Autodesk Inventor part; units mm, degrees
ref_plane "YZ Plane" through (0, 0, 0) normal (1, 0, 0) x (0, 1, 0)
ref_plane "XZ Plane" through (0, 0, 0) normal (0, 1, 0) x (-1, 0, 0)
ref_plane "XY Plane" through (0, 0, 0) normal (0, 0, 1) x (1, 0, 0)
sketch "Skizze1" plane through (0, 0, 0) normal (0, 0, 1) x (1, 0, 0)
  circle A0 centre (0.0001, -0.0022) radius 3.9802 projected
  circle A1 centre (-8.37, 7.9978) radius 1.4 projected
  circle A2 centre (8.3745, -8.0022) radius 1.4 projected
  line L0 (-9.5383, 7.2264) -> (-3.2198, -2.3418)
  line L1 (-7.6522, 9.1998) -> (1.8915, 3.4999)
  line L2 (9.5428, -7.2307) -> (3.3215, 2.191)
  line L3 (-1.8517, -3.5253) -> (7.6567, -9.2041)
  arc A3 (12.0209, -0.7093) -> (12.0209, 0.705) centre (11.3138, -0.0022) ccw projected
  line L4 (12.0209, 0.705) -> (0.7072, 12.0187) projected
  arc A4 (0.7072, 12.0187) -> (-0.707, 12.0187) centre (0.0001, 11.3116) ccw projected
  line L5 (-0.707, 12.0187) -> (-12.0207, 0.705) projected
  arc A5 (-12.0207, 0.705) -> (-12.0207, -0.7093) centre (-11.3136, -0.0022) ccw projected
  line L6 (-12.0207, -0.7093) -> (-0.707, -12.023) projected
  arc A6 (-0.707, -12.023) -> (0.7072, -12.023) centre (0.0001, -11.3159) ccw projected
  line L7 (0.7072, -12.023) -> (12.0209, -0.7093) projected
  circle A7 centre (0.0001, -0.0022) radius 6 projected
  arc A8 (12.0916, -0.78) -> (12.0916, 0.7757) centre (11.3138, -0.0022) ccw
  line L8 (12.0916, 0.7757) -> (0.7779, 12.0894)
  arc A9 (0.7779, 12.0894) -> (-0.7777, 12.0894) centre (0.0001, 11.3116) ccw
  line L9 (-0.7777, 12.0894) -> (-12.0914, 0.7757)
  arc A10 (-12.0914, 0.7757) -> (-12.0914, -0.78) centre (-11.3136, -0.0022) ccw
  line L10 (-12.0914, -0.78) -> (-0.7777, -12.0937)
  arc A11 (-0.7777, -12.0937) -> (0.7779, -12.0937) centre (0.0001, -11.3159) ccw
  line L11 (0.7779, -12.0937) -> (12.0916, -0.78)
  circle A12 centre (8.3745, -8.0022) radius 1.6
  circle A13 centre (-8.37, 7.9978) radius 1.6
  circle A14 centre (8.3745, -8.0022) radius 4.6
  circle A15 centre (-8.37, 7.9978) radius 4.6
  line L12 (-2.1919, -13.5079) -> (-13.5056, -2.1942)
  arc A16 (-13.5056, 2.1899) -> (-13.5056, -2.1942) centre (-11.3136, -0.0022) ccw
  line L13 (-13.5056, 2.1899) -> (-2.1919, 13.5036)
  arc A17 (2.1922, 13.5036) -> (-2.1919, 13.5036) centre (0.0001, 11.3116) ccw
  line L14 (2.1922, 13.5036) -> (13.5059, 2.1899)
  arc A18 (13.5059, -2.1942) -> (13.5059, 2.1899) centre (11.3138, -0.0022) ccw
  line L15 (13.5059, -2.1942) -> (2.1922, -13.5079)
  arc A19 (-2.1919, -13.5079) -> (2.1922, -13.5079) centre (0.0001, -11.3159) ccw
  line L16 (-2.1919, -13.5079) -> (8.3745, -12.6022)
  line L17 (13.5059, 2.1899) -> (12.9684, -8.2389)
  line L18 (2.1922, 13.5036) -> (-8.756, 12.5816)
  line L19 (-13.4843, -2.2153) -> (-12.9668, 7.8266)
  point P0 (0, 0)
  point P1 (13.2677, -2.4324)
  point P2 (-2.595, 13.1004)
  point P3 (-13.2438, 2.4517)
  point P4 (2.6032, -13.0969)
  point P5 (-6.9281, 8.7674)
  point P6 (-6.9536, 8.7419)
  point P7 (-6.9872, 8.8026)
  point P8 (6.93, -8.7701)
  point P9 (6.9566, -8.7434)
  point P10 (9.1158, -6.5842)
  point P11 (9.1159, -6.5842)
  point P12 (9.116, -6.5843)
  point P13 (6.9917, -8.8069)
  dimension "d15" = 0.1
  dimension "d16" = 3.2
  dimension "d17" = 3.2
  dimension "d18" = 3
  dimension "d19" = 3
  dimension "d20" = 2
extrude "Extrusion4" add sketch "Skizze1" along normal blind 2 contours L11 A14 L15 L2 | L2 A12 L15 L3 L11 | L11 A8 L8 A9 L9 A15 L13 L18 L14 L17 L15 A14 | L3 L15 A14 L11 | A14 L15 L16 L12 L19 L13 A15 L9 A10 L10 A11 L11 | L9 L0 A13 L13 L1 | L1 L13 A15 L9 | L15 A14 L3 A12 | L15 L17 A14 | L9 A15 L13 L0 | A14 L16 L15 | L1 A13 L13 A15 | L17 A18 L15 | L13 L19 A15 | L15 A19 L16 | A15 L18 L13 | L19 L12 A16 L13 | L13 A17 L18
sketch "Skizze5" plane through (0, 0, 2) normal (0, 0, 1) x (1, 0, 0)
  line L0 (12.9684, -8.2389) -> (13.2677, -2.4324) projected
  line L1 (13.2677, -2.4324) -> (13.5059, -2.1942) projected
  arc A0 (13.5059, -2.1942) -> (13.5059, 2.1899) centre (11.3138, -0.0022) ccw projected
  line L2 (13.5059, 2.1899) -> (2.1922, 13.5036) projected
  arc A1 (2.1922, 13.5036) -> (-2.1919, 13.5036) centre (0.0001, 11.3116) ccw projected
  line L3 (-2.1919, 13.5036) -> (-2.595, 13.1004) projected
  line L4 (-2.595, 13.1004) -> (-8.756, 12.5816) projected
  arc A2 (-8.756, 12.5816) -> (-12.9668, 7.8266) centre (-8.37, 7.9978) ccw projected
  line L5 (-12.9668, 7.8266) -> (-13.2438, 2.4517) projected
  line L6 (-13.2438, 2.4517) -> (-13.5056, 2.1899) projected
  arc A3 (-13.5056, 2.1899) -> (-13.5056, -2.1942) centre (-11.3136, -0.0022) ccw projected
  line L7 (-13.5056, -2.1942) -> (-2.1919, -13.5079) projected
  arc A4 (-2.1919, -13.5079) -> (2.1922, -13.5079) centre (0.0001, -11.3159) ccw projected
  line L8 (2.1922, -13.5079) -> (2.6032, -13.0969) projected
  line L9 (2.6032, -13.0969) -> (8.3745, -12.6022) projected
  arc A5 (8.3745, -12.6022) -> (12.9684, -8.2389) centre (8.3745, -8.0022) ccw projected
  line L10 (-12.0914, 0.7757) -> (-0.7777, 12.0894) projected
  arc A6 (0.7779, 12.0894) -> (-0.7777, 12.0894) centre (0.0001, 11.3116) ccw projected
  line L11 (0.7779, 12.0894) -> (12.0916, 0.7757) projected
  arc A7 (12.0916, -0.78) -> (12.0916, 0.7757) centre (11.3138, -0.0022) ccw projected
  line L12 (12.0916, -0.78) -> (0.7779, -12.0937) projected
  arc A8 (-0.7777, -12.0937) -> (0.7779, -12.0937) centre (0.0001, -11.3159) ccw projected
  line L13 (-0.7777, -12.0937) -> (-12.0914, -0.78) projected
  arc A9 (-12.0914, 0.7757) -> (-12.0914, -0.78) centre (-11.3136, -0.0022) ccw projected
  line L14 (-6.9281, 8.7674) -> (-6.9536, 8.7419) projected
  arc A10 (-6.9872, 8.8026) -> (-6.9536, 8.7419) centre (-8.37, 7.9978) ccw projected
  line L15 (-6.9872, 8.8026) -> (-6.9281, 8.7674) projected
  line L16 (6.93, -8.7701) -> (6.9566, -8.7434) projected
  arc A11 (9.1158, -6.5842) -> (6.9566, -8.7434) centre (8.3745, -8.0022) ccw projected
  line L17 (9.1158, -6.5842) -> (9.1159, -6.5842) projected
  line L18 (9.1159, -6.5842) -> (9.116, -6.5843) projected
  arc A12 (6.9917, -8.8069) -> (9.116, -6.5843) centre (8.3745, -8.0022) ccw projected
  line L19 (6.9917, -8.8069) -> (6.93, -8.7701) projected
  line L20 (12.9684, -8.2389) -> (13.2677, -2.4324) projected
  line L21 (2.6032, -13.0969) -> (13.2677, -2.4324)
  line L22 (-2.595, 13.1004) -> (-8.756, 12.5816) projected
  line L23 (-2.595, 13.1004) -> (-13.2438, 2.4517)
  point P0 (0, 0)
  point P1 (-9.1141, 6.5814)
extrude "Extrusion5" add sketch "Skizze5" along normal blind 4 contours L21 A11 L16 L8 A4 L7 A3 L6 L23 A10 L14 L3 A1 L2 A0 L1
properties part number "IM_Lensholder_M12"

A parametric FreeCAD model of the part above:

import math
import FreeCAD as App
import Part
import Sketcher

V = App.Vector
Q = App.Units.Quantity

doc = App.newDocument("Part")
body = doc.addObject("PartDesign::Body", "Body")

# Sketch on XY plane
sketch1 = body.newObject("Sketcher::SketchObject", "Sketch")
sketch1.AttachmentSupport = (doc.getObject("XY_Plane"), [""])
sketch1.MapMode = "FlatFace"
sketch1.addGeometry([
    Part.LineSegment(V(13.506, 2.19, 0), V(2.192, 13.504, 0)),  # 0
    Part.ArcOfCircle(Part.Circle(V(0, 11.312, 0), V(0, 0, 1), 3.1), math.radians(45), math.radians(135)),  # 1
    Part.LineSegment(V(-2.192, 13.504, 0), V(-2.595, 13.1, 0)),  # 2
    Part.LineSegment(V(-2.595, 13.1, 0), V(-8.756, 12.582, 0)),  # 3
    Part.ArcOfCircle(Part.Circle(V(-8.37, 7.998, 0), V(0, 0, 1), 4.6), math.radians(95), math.radians(182)),  # 4
    Part.LineSegment(V(-12.967, 7.827, 0), V(-13.244, 2.452, 0)),  # 5
    Part.LineSegment(V(-13.244, 2.452, 0), V(-13.506, 2.19, 0)),  # 6
    Part.ArcOfCircle(Part.Circle(V(-11.314, -0.002, 0), V(0, 0, 1), 3.1), math.radians(135), math.radians(225)),  # 7
    Part.LineSegment(V(-13.506, -2.194, 0), V(-2.192, -13.508, 0)),  # 8
    Part.ArcOfCircle(Part.Circle(V(0, -11.316, 0), V(0, 0, 1), 3.1), math.radians(-135), math.radians(-45)),  # 9
    Part.LineSegment(V(2.192, -13.508, 0), V(2.603, -13.097, 0)),  # 10
    Part.LineSegment(V(2.603, -13.097, 0), V(8.374, -12.602, 0)),  # 11
    Part.ArcOfCircle(Part.Circle(V(8.374, -8.002, 0), V(0, 0, 1), 4.6), math.radians(-90), math.radians(-3)),  # 12
    Part.LineSegment(V(12.968, -8.239, 0), V(13.268, -2.432, 0)),  # 13
    Part.LineSegment(V(13.268, -2.432, 0), V(13.506, -2.194, 0)),  # 14
    Part.ArcOfCircle(Part.Circle(V(11.314, -0.002, 0), V(0, 0, 1), 3.1), math.radians(-45), math.radians(45)),  # 15
    Part.ArcOfCircle(Part.Circle(V(0, -11.316, 0), V(0, 0, 1), 1.1), math.radians(-135), math.radians(-45)),  # 16
    Part.LineSegment(V(-0.778, -12.094, 0), V(-12.091, -0.78, 0)),  # 17
    Part.ArcOfCircle(Part.Circle(V(-11.314, -0.002, 0), V(0, 0, 1), 1.1), math.radians(135), math.radians(225)),  # 18
    Part.LineSegment(V(-12.091, 0.776, 0), V(-0.778, 12.089, 0)),  # 19
    Part.ArcOfCircle(Part.Circle(V(0, 11.312, 0), V(0, 0, 1), 1.1), math.radians(45), math.radians(135)),  # 20
    Part.LineSegment(V(0.778, 12.089, 0), V(12.092, 0.776, 0)),  # 21
    Part.ArcOfCircle(Part.Circle(V(11.314, -0.002, 0), V(0, 0, 1), 1.1), math.radians(-45), math.radians(45)),  # 22
    Part.LineSegment(V(12.092, -0.78, 0), V(0.778, -12.094, 0)),  # 23
    Part.LineSegment(V(6.992, -8.807, 0), V(6.93, -8.77, 0)),  # 24
    Part.LineSegment(V(6.93, -8.77, 0), V(6.957, -8.744, 0)),  # 25
    Part.ArcOfCircle(Part.Circle(V(8.374, -8.002, 0), V(0, 0, 1), 1.6), math.radians(-150), math.radians(208)),  # 26
    Part.LineSegment(V(-6.987, 8.803, 0), V(-6.928, 8.767, 0)),  # 27
    Part.LineSegment(V(-6.928, 8.767, 0), V(-6.954, 8.742, 0)),  # 28
    Part.ArcOfCircle(Part.Circle(V(-8.37, 7.998, 0), V(0, 0, 1), 1.6), math.radians(30), math.radians(388)),  # 29
], False)
sketch1.addConstraint([
    Sketcher.Constraint("Tangent", 0, 2, 1, 1),
    Sketcher.Constraint("Tangent", 1, 2, 2, 1),
    Sketcher.Constraint("Coincident", 2, 2, 3, 1),
    Sketcher.Constraint("Tangent", 3, 2, 4, 1),
    Sketcher.Constraint("Coincident", 4, 2, 5, 1),
    Sketcher.Constraint("Coincident", 5, 2, 6, 1),
    Sketcher.Constraint("Tangent", 6, 2, 7, 1),
    Sketcher.Constraint("Tangent", 7, 2, 8, 1),
    Sketcher.Constraint("Tangent", 8, 2, 9, 1),
    Sketcher.Constraint("Tangent", 9, 2, 10, 1),
    Sketcher.Constraint("Coincident", 10, 2, 11, 1),
    Sketcher.Constraint("Coincident", 11, 2, 12, 1),
    Sketcher.Constraint("Tangent", 12, 2, 13, 1),
    Sketcher.Constraint("Coincident", 13, 2, 14, 1),
    Sketcher.Constraint("Tangent", 14, 2, 15, 1),
    Sketcher.Constraint("Tangent", 15, 2, 0, 1),
    Sketcher.Constraint("Tangent", 16, 1, 17, 1),
    Sketcher.Constraint("Tangent", 17, 2, 18, 2),
    Sketcher.Constraint("Tangent", 18, 1, 19, 1),
    Sketcher.Constraint("Tangent", 19, 2, 20, 2),
    Sketcher.Constraint("Tangent", 20, 1, 21, 1),
    Sketcher.Constraint("Tangent", 21, 2, 22, 2),
    Sketcher.Constraint("Tangent", 22, 1, 23, 1),
    Sketcher.Constraint("Tangent", 23, 2, 16, 2),
    Sketcher.Constraint("Coincident", 24, 2, 25, 1),
    Sketcher.Constraint("Coincident", 25, 2, 26, 2),
    Sketcher.Constraint("Coincident", 26, 1, 24, 1),
    Sketcher.Constraint("Coincident", 27, 2, 28, 1),
    Sketcher.Constraint("Coincident", 28, 2, 29, 2),
    Sketcher.Constraint("Coincident", 29, 1, 27, 1),
    Sketcher.Constraint("Coincident", 16, 3, 9, 3),
    Sketcher.Constraint("Coincident", 18, 3, 7, 3),
    Sketcher.Constraint("Coincident", 20, 3, 1, 3),
    Sketcher.Constraint("Coincident", 22, 3, 15, 3),
    Sketcher.Constraint("Coincident", 26, 3, 12, 3),
    Sketcher.Constraint("Coincident", 29, 3, 4, 3),
    Sketcher.Constraint("Equal", 1, 7),
    Sketcher.Constraint("Equal", 7, 9),
    Sketcher.Constraint("Equal", 4, 12),
    Sketcher.Constraint("Equal", 9, 15),
    Sketcher.Constraint("Equal", 16, 18),
    Sketcher.Constraint("Equal", 18, 20),
    Sketcher.Constraint("Equal", 20, 22),
    Sketcher.Constraint("Equal", 26, 29),
    Sketcher.Constraint("Symmetric", 7, 3, 15, 3, -2),
    Sketcher.Constraint("Symmetric", 0, 2, 1, 2, -2),
    Sketcher.Constraint("Symmetric", 8, 2, 9, 2, -2),
    Sketcher.Constraint("Perpendicular", 0, 2),
    Sketcher.Constraint("Parallel", 2, 6),
    Sketcher.Constraint("Perpendicular", 6, 8),
    Sketcher.Constraint("Parallel", 5, 13),
    Sketcher.Constraint("Parallel", 10, 14),
    Sketcher.Constraint("Parallel", 23, 25),
    Sketcher.Constraint("Parallel", 24, 27),
    Sketcher.Constraint("Parallel", 25, 28),
    Sketcher.Constraint("Vertical", 26, 3, 11, 2),
    Sketcher.Constraint("Radius", 26, 1.6),
    Sketcher.Constraint("Radius", 1, 3.1),
    Sketcher.Constraint("Radius", 4, 4.6),
    Sketcher.Constraint("Radius", 16, 1.1),
    Sketcher.Constraint("Distance", 0, 16.0),
    Sketcher.Constraint("Angle", 11, Q("4.8991 deg")),
    Sketcher.Constraint("DistanceY", 7, 3, 4, 3, 8.0),
    Sketcher.Constraint("DistanceY", 12, 3, 7, 3, 8.0),
    Sketcher.Constraint("Angle", 5, Q("-92.95 deg")),
    Sketcher.Constraint("DistanceX", 4, 3, -1, 1, 8.37),
    Sketcher.Constraint("DistanceY", -1, 1, 6, 2, 2.19),
    Sketcher.Constraint("DistanceX", -1, 1, 24, 2, 6.93),
    Sketcher.Constraint("DistanceY", 24, 2, -1, 1, 8.77),
    Sketcher.Constraint("DistanceY", 1, 3, 3, 2, 1.27),
    Sketcher.Constraint("Distance", 5, 5.382),
    Sketcher.Constraint("Distance", 14, 0.337),
    Sketcher.Constraint("Distance", 28, 0.036),
    Sketcher.Constraint("DistanceY", -1, 1, 28, 2, 8.742),
    Sketcher.Constraint("DistanceX", 25, 2, 26, 1, 0.035),
])
pad1 = body.newObject("PartDesign::Pad", "Pad")
pad1.Profile = sketch1
pad1.Length = 2

# Sketch on XY plane
sketch2 = body.newObject("Sketcher::SketchObject", "Sketch001")
sketch2.AttachmentSupport = (doc.getObject("XY_Plane"), [""])
sketch2.MapMode = "FlatFace"
sketch2.AttachmentOffset = App.Placement(V(0, 0, 2), App.Rotation())
sketch2.addGeometry([
    Part.LineSegment(V(9.116, -6.584, 0), V(13.506, -2.194, 0)),  # 0
    Part.ArcOfCircle(Part.Circle(V(11.314, -0.002, 0), V(0, 0, 1), 3.1), math.radians(-45), math.radians(45)),  # 1
    Part.LineSegment(V(13.506, 2.19, 0), V(2.192, 13.504, 0)),  # 2
    Part.ArcOfCircle(Part.Circle(V(0, 11.312, 0), V(0, 0, 1), 3.1), math.radians(45), math.radians(135)),  # 3
    Part.LineSegment(V(-2.192, 13.504, 0), V(-2.595, 13.1, 0)),  # 4
    Part.LineSegment(V(-2.595, 13.1, 0), V(-6.928, 8.767, 0)),  # 5
    Part.LineSegment(V(-6.928, 8.767, 0), V(-6.954, 8.742, 0)),  # 6
    Part.ArcOfCircle(Part.Circle(V(-8.37, 7.998, 0), V(0, 0, 1), 1.6), math.radians(-118), math.radians(28)),  # 7
    Part.LineSegment(V(-9.114, 6.581, 0), V(-13.244, 2.452, 0)),  # 8
    Part.LineSegment(V(-13.244, 2.452, 0), V(-13.506, 2.19, 0)),  # 9
    Part.ArcOfCircle(Part.Circle(V(-11.314, -0.002, 0), V(0, 0, 1), 3.1), math.radians(135), math.radians(225)),  # 10
    Part.LineSegment(V(-13.506, -2.194, 0), V(-2.192, -13.508, 0)),  # 11
    Part.ArcOfCircle(Part.Circle(V(0, -11.316, 0), V(0, 0, 1), 3.1), math.radians(-135), math.radians(-45)),  # 12
    Part.LineSegment(V(2.192, -13.508, 0), V(6.93, -8.77, 0)),  # 13
    Part.LineSegment(V(6.93, -8.77, 0), V(6.957, -8.743, 0)),  # 14
    Part.ArcOfCircle(Part.Circle(V(8.374, -8.002, 0), V(0, 0, 1), 1.6), math.radians(62), math.radians(208)),  # 15
    Part.ArcOfCircle(Part.Circle(V(-11.314, -0.002, 0), V(0, 0, 1), 1.1), math.radians(135), math.radians(225)),  # 16
    Part.LineSegment(V(-12.091, 0.776, 0), V(-0.778, 12.089, 0)),  # 17
    Part.ArcOfCircle(Part.Circle(V(0, 11.312, 0), V(0, 0, 1), 1.1), math.radians(45), math.radians(135)),  # 18
    Part.LineSegment(V(0.778, 12.089, 0), V(12.092, 0.776, 0)),  # 19
    Part.ArcOfCircle(Part.Circle(V(11.314, -0.002, 0), V(0, 0, 1), 1.1), math.radians(-45), math.radians(45)),  # 20
    Part.LineSegment(V(12.092, -0.78, 0), V(0.778, -12.094, 0)),  # 21
    Part.ArcOfCircle(Part.Circle(V(0, -11.316, 0), V(0, 0, 1), 1.1), math.radians(-135), math.radians(-45)),  # 22
    Part.LineSegment(V(-0.778, -12.094, 0), V(-12.091, -0.78, 0)),  # 23
], False)
sketch2.addConstraint([
    Sketcher.Constraint("Tangent", 0, 2, 1, 1),
    Sketcher.Constraint("Tangent", 1, 2, 2, 1),
    Sketcher.Constraint("Tangent", 2, 2, 3, 1),
    Sketcher.Constraint("Tangent", 3, 2, 4, 1),
    Sketcher.Constraint("Coincident", 4, 2, 5, 1),
    Sketcher.Constraint("Coincident", 5, 2, 6, 1),
    Sketcher.Constraint("Coincident", 6, 2, 7, 2),
    Sketcher.Constraint("Coincident", 7, 1, 8, 1),
    Sketcher.Constraint("Coincident", 8, 2, 9, 1),
    Sketcher.Constraint("Tangent", 9, 2, 10, 1),
    Sketcher.Constraint("Tangent", 10, 2, 11, 1),
    Sketcher.Constraint("Tangent", 11, 2, 12, 1),
    Sketcher.Constraint("Tangent", 12, 2, 13, 1),
    Sketcher.Constraint("Coincident", 13, 2, 14, 1),
    Sketcher.Constraint("Coincident", 14, 2, 15, 2),
    Sketcher.Constraint("Coincident", 15, 1, 0, 1),
    Sketcher.Constraint("Tangent", 16, 1, 17, 1),
    Sketcher.Constraint("Tangent", 17, 2, 18, 2),
    Sketcher.Constraint("Tangent", 18, 1, 19, 1),
    Sketcher.Constraint("Tangent", 19, 2, 20, 2),
    Sketcher.Constraint("Tangent", 20, 1, 21, 1),
    Sketcher.Constraint("Tangent", 21, 2, 22, 2),
    Sketcher.Constraint("Tangent", 22, 1, 23, 1),
    Sketcher.Constraint("Tangent", 23, 2, 16, 2),
    Sketcher.Constraint("Coincident", 16, 3, 10, 3),
    Sketcher.Constraint("Coincident", 18, 3, 3, 3),
    Sketcher.Constraint("Coincident", 20, 3, 1, 3),
    Sketcher.Constraint("Coincident", 22, 3, 12, 3),
    Sketcher.Constraint("Equal", 1, 3),
    Sketcher.Constraint("Equal", 3, 10),
    Sketcher.Constraint("Equal", 10, 12),
    Sketcher.Constraint("Equal", 7, 15),
    Sketcher.Constraint("Equal", 16, 18),
    Sketcher.Constraint("Equal", 18, 20),
    Sketcher.Constraint("Equal", 20, 22),
    Sketcher.Constraint("Symmetric", 1, 3, 10, 3, -2),
    Sketcher.Constraint("Symmetric", 2, 2, 3, 2, -2),
    Sketcher.Constraint("Symmetric", 11, 2, 12, 2, -2),
    Sketcher.Constraint("Perpendicular", 0, 2),
    Sketcher.Constraint("Perpendicular", 2, 4),
    Sketcher.Constraint("Parallel", 4, 5),
    Sketcher.Constraint("Parallel", 5, 6),
    Sketcher.Constraint("Parallel", 6, 8),
    Sketcher.Constraint("Parallel", 8, 9),
    Sketcher.Constraint("Perpendicular", 9, 11),
    Sketcher.Constraint("Radius", 1, 3.1),
    Sketcher.Constraint("Radius", 7, 1.6),
    Sketcher.Constraint("Radius", 16, 1.1),
    Sketcher.Constraint("Distance", 2, 16.0),
    Sketcher.Constraint("DistanceY", 1, 3, 7, 3, 8.0),
    Sketcher.Constraint("DistanceY", 15, 3, 1, 3, 8.0),
    Sketcher.Constraint("DistanceX", 7, 3, -1, 1, 8.37),
    Sketcher.Constraint("DistanceY", -1, 1, 9, 2, 2.19),
    Sketcher.Constraint("DistanceX", -1, 1, 13, 2, 6.93),
    Sketcher.Constraint("DistanceY", 15, 1, 19, 2, 7.36),
    Sketcher.Constraint("Distance", 6, 0.036),
    Sketcher.Constraint("DistanceX", 4, 2, -1, 1, 2.595),
    Sketcher.Constraint("DistanceY", 10, 3, 8, 2, 2.454),
    Sketcher.Constraint("DistanceX", 14, 2, 15, 3, 1.418),
])
pad2 = body.newObject("PartDesign::Pad", "Pad001")
pad2.Profile = sketch2
pad2.Length = 4

doc.recompute()
